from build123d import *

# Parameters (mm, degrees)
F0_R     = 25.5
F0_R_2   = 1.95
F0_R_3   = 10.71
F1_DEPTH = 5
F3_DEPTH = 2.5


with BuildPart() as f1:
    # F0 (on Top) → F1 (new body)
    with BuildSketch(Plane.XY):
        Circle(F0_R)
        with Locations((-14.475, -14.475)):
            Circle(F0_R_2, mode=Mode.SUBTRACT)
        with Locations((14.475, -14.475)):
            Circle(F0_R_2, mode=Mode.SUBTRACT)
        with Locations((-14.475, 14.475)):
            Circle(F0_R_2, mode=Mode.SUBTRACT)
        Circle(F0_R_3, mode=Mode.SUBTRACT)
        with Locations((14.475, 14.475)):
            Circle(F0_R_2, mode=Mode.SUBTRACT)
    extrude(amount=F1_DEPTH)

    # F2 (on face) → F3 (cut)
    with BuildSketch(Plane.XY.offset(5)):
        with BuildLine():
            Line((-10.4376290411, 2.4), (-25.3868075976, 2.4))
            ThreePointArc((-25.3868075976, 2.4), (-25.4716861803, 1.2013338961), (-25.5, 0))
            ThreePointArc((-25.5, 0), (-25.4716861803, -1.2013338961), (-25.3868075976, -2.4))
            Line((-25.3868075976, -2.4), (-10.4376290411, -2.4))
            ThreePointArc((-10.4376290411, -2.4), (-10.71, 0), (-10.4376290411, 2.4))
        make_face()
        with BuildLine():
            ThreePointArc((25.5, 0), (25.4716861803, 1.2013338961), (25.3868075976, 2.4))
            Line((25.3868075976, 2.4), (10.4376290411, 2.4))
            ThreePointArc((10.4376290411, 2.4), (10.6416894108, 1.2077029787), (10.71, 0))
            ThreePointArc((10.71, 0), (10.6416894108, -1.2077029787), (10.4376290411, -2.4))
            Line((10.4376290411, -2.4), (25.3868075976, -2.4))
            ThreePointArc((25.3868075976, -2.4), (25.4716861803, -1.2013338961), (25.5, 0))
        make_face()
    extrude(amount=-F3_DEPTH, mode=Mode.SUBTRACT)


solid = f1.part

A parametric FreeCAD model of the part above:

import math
import FreeCAD as App
import Part
import Sketcher

V = App.Vector

doc = App.newDocument("Part")
body = doc.addObject("PartDesign::Body", "Body")

sketch1 = body.newObject("Sketcher::SketchObject", "Sketch")
sketch1.AttachmentSupport = (doc.getObject("XY_Plane"), [""])
sketch1.MapMode = "FlatFace"
sketch1.addGeometry([
    Part.Circle(V(0, 0, 0), V(0, 0, 1), 25.5),
    Part.Circle(V(-14.5, -14.5, 0), V(0, 0, 1), 1.9),
    Part.Circle(V(14.5, -14.5, 0), V(0, 0, 1), 1.9),
    Part.Circle(V(-14.5, 14.5, 0), V(0, 0, 1), 1.9),
    Part.Circle(V(0, 0, 0), V(0, 0, 1), 10.7),
    Part.Circle(V(14.5, 14.5, 0), V(0, 0, 1), 1.9),
], False)
sketch1.addConstraint([
    Sketcher.Constraint("Coincident", 0, 3, -1, 1),
    Sketcher.Constraint("Coincident", 4, 3, -1, 1),
    Sketcher.Constraint("Equal", 1, 2),
    Sketcher.Constraint("Equal", 2, 3),
    Sketcher.Constraint("Equal", 3, 5),
    Sketcher.Constraint("Symmetric", 2, 3, 3, 3, -1, 1),
    Sketcher.Constraint("Symmetric", 1, 3, 5, 3, -1, 1),
    Sketcher.Constraint("Symmetric", 1, 3, 2, 3, -2),
    Sketcher.Constraint("Diameter", 0, 51.0),
    Sketcher.Constraint("Diameter", 1, 3.9),
    Sketcher.Constraint("Diameter", 4, 21.42),
    Sketcher.Constraint("DistanceX", 1, 3, 2, 3, 28.95),
    Sketcher.Constraint("DistanceY", 1, 3, 3, 3, 28.95),
])
pad1 = body.newObject("PartDesign::Pad", "Pad")
pad1.Profile = sketch1
pad1.Length = 5

sketch2 = body.newObject("Sketcher::SketchObject", "Sketch001")
sketch2.AttachmentSupport = (doc.getObject("XY_Plane"), [""])
sketch2.MapMode = "FlatFace"
sketch2.AttachmentOffset = App.Placement(V(0, 0, 5), App.Rotation())
sketch2.addGeometry([
    Part.LineSegment(V(-10.4, 2.4, 0), V(-25.4, 2.4, 0)),
    Part.ArcOfCircle(Part.Circle(V(0, 0, 0), V(0, 0, 1), 25.5), math.radians(174.6), math.radians(180)),
    Part.ArcOfCircle(Part.Circle(V(0, 0, 0), V(0, 0, 1), 25.5), math.radians(-180), math.radians(-174.6)),
    Part.LineSegment(V(-25.4, -2.4, 0), V(-10.4, -2.4, 0)),
    Part.ArcOfCircle(Part.Circle(V(0, 0, 0), V(0, 0, 1), 10.7), math.radians(167), math.radians(193)),
    Part.ArcOfCircle(Part.Circle(V(0, 0, 0), V(0, 0, 1), 25.5), math.radians(0), math.radians(5.4)),
    Part.LineSegment(V(25.4, 2.4, 0), V(10.4, 2.4, 0)),
    Part.ArcOfCircle(Part.Circle(V(0, 0, 0), V(0, 0, 1), 10.7), math.radians(0), math.radians(12.95)),
    Part.ArcOfCircle(Part.Circle(V(0, 0, 0), V(0, 0, 1), 10.7), math.radians(-12.95), math.radians(0)),
    Part.LineSegment(V(10.4, -2.4, 0), V(25.4, -2.4, 0)),
    Part.ArcOfCircle(Part.Circle(V(0, 0, 0), V(0, 0, 1), 25.5), math.radians(-5.4), math.radians(0)),
], False)
sketch2.addConstraint([
    Sketcher.Constraint("Coincident", 0, 2, 1, 1),
    Sketcher.Constraint("Tangent", 1, 2, 2, 1),
    Sketcher.Constraint("Coincident", 2, 2, 3, 1),
    Sketcher.Constraint("Coincident", 3, 2, 4, 2),
    Sketcher.Constraint("Coincident", 4, 1, 0, 1),
    Sketcher.Constraint("Coincident", 5, 2, 6, 1),
    Sketcher.Constraint("Coincident", 6, 2, 7, 2),
    Sketcher.Constraint("Tangent", 7, 1, 8, 2),
    Sketcher.Constraint("Coincident", 8, 1, 9, 1),
    Sketcher.Constraint("Coincident", 9, 2, 10, 1),
    Sketcher.Constraint("Tangent", 10, 2, 5, 1),
    Sketcher.Constraint("Horizontal", 0),
    Sketcher.Constraint("Horizontal", 3),
    Sketcher.Constraint("Horizontal", 6),
    Sketcher.Constraint("Horizontal", 9),
    Sketcher.Constraint("Coincident", 1, 3, -1, 1),
    Sketcher.Constraint("Coincident", 4, 3, -1, 1),
    Sketcher.Constraint("Coincident", 5, 3, -1, 1),
    Sketcher.Constraint("Coincident", 7, 3, -1, 1),
    Sketcher.Constraint("Equal", 1, 2),
    Sketcher.Constraint("Equal", 2, 5),
    Sketcher.Constraint("Equal", 4, 7),
    Sketcher.Constraint("Equal", 7, 8),
    Sketcher.Constraint("Equal", 5, 10),
    Sketcher.Constraint("PointOnObject", 1, 2, -1),
    Sketcher.Constraint("PointOnObject", 7, 1, -1),
    Sketcher.Constraint("PointOnObject", 10, 2, -1),
    Sketcher.Constraint("Horizontal", 4, 1, 5, 2),
    Sketcher.Constraint("Horizontal", 3, 2, 8, 1),
    Sketcher.Constraint("Vertical", 0, 2, 2, 2),
    Sketcher.Constraint("Radius", 1, 25.5),
    Sketcher.Constraint("Radius", 4, 10.71),
    Sketcher.Constraint("DistanceY", -1, 1, 0, 2, 2.4),
])
pocket1 = body.newObject("PartDesign::Pocket", "Pocket")
pocket1.Profile = sketch2
pocket1.Length = 2.5

doc.recompute()
